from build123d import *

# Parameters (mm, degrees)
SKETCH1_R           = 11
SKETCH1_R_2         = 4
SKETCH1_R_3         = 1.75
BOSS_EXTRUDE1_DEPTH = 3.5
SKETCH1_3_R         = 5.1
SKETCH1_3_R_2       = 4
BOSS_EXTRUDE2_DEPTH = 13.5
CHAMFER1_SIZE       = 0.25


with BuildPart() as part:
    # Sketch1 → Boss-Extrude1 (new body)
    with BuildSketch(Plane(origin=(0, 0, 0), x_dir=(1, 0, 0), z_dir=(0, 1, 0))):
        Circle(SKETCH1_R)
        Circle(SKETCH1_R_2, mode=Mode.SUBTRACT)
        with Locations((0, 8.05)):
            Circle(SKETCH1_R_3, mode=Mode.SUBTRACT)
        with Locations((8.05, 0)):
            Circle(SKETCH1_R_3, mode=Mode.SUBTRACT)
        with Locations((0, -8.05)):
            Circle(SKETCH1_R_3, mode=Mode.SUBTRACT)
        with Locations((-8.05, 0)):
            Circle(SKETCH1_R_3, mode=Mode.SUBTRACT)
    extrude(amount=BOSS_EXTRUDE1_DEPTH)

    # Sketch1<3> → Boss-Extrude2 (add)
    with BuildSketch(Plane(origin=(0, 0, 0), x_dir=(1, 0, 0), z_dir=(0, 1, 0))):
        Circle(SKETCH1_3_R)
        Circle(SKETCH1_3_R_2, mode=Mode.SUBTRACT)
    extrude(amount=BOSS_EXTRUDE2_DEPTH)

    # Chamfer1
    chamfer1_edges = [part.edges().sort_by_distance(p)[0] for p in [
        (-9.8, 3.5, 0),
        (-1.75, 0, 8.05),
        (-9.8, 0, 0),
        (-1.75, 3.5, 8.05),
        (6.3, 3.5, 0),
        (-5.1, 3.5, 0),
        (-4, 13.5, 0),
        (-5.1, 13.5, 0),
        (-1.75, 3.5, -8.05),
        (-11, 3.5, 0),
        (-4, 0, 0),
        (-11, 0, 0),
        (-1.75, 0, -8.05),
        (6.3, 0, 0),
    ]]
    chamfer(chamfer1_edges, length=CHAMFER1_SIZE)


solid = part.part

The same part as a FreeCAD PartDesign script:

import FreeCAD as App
import Part
import Sketcher


def edges_at(feature, points):
    """Names of the edges that pass closest to the given points."""
    edges = feature.Shape.Edges
    near = lambda p: min(range(len(edges)), key=lambda i: edges[i].distToShape(Part.Vertex(*p))[0])
    return sorted({f"Edge{near(p) + 1}" for p in points})

doc = App.newDocument("Part")
body = doc.addObject("PartDesign::Body", "Body")

sketch1 = body.newObject("Sketcher::SketchObject", "Sketch")
sketch1.AttachmentSupport = (doc.getObject("XZ_Plane"), [""])
sketch1.MapMode = "FlatFace"
sketch1.addGeometry(Part.Circle(App.Vector(0, 0, 0), App.Vector(0, 0, 1), 11), False)
sketch1.addGeometry(Part.Circle(App.Vector(0, 8.1, 0), App.Vector(0, 0, 1), 1.8), False)
sketch1.addGeometry(Part.Circle(App.Vector(-8.1, 0, 0), App.Vector(0, 0, 1), 1.8), False)
sketch1.addGeometry(Part.Circle(App.Vector(0, 0, 0), App.Vector(0, 0, 1), 4), False)
sketch1.addGeometry(Part.Circle(App.Vector(8.1, 0, 0), App.Vector(0, 0, 1), 1.8), False)
sketch1.addGeometry(Part.Circle(App.Vector(0, -8.1, 0), App.Vector(0, 0, 1), 1.8), False)
sketch1.addConstraint(Sketcher.Constraint("Coincident", 0, 3, -1, 1))
sketch1.addConstraint(Sketcher.Constraint("Coincident", 3, 3, -1, 1))
sketch1.addConstraint(Sketcher.Constraint("Equal", 1, 2))
sketch1.addConstraint(Sketcher.Constraint("Equal", 2, 4))
sketch1.addConstraint(Sketcher.Constraint("Equal", 4, 5))
sketch1.addConstraint(Sketcher.Constraint("Symmetric", 2, 3, 4, 3, -1, 1))
sketch1.addConstraint(Sketcher.Constraint("Symmetric", 1, 3, 5, 3, -1, 1))
sketch1.addConstraint(Sketcher.Constraint("PointOnObject", 1, 3, -2))
sketch1.addConstraint(Sketcher.Constraint("PointOnObject", 2, 3, -1))
sketch1.addConstraint(Sketcher.Constraint("Diameter", 0, 22.0))
sketch1.addConstraint(Sketcher.Constraint("Diameter", 3, 8.0))
sketch1.addConstraint(Sketcher.Constraint("Diameter", 1, 3.5))
sketch1.addConstraint(Sketcher.Constraint("DistanceX", 2, 3, 4, 3, 16.1))
sketch1.addConstraint(Sketcher.Constraint("DistanceY", 5, 3, 1, 3, 16.1))
pad1 = body.newObject("PartDesign::Pad", "Pad")
pad1.Profile = sketch1
pad1.Length = 3.5
pad1.Reversed = True

sketch2 = body.newObject("Sketcher::SketchObject", "Sketch001")
sketch2.AttachmentSupport = (doc.getObject("XZ_Plane"), [""])
sketch2.MapMode = "FlatFace"
sketch2.addGeometry(Part.Circle(App.Vector(0, 0, 0), App.Vector(0, 0, 1), 5.1), False)
sketch2.addGeometry(Part.Circle(App.Vector(0, 0, 0), App.Vector(0, 0, 1), 4), False)
sketch2.addConstraint(Sketcher.Constraint("Coincident", 0, 3, -1, 1))
sketch2.addConstraint(Sketcher.Constraint("Coincident", 1, 3, -1, 1))
sketch2.addConstraint(Sketcher.Constraint("Diameter", 1, 8.0))
sketch2.addConstraint(Sketcher.Constraint("Diameter", 0, 10.2))
pad2 = body.newObject("PartDesign::Pad", "Pad001")
pad2.Profile = sketch2
pad2.Length = 13.5
pad2.Reversed = True
doc.recompute()

chamfer = body.newObject("PartDesign::Chamfer", "Chamfer")
chamfer.Base = (pad2, edges_at(pad2, [
    (-9.8, 3.5, 0),
    (-1.75, 0, 8.05),
    (-9.8, 0, 0),
    (-1.75, 3.5, 8.05),
    (6.3, 3.5, 0),
    (-5.1, 3.5, 0),
    (-4, 13.5, 0),
    (-5.1, 13.5, 0),
    (-1.75, 3.5, -8.05),
    (-11, 3.5, 0),
    (-4, 0, 0),
    (-11, 0, 0),
    (-1.75, 0, -8.05),
    (6.3, 0, 0),
]))
chamfer.Size = 0.25

doc.recompute()
